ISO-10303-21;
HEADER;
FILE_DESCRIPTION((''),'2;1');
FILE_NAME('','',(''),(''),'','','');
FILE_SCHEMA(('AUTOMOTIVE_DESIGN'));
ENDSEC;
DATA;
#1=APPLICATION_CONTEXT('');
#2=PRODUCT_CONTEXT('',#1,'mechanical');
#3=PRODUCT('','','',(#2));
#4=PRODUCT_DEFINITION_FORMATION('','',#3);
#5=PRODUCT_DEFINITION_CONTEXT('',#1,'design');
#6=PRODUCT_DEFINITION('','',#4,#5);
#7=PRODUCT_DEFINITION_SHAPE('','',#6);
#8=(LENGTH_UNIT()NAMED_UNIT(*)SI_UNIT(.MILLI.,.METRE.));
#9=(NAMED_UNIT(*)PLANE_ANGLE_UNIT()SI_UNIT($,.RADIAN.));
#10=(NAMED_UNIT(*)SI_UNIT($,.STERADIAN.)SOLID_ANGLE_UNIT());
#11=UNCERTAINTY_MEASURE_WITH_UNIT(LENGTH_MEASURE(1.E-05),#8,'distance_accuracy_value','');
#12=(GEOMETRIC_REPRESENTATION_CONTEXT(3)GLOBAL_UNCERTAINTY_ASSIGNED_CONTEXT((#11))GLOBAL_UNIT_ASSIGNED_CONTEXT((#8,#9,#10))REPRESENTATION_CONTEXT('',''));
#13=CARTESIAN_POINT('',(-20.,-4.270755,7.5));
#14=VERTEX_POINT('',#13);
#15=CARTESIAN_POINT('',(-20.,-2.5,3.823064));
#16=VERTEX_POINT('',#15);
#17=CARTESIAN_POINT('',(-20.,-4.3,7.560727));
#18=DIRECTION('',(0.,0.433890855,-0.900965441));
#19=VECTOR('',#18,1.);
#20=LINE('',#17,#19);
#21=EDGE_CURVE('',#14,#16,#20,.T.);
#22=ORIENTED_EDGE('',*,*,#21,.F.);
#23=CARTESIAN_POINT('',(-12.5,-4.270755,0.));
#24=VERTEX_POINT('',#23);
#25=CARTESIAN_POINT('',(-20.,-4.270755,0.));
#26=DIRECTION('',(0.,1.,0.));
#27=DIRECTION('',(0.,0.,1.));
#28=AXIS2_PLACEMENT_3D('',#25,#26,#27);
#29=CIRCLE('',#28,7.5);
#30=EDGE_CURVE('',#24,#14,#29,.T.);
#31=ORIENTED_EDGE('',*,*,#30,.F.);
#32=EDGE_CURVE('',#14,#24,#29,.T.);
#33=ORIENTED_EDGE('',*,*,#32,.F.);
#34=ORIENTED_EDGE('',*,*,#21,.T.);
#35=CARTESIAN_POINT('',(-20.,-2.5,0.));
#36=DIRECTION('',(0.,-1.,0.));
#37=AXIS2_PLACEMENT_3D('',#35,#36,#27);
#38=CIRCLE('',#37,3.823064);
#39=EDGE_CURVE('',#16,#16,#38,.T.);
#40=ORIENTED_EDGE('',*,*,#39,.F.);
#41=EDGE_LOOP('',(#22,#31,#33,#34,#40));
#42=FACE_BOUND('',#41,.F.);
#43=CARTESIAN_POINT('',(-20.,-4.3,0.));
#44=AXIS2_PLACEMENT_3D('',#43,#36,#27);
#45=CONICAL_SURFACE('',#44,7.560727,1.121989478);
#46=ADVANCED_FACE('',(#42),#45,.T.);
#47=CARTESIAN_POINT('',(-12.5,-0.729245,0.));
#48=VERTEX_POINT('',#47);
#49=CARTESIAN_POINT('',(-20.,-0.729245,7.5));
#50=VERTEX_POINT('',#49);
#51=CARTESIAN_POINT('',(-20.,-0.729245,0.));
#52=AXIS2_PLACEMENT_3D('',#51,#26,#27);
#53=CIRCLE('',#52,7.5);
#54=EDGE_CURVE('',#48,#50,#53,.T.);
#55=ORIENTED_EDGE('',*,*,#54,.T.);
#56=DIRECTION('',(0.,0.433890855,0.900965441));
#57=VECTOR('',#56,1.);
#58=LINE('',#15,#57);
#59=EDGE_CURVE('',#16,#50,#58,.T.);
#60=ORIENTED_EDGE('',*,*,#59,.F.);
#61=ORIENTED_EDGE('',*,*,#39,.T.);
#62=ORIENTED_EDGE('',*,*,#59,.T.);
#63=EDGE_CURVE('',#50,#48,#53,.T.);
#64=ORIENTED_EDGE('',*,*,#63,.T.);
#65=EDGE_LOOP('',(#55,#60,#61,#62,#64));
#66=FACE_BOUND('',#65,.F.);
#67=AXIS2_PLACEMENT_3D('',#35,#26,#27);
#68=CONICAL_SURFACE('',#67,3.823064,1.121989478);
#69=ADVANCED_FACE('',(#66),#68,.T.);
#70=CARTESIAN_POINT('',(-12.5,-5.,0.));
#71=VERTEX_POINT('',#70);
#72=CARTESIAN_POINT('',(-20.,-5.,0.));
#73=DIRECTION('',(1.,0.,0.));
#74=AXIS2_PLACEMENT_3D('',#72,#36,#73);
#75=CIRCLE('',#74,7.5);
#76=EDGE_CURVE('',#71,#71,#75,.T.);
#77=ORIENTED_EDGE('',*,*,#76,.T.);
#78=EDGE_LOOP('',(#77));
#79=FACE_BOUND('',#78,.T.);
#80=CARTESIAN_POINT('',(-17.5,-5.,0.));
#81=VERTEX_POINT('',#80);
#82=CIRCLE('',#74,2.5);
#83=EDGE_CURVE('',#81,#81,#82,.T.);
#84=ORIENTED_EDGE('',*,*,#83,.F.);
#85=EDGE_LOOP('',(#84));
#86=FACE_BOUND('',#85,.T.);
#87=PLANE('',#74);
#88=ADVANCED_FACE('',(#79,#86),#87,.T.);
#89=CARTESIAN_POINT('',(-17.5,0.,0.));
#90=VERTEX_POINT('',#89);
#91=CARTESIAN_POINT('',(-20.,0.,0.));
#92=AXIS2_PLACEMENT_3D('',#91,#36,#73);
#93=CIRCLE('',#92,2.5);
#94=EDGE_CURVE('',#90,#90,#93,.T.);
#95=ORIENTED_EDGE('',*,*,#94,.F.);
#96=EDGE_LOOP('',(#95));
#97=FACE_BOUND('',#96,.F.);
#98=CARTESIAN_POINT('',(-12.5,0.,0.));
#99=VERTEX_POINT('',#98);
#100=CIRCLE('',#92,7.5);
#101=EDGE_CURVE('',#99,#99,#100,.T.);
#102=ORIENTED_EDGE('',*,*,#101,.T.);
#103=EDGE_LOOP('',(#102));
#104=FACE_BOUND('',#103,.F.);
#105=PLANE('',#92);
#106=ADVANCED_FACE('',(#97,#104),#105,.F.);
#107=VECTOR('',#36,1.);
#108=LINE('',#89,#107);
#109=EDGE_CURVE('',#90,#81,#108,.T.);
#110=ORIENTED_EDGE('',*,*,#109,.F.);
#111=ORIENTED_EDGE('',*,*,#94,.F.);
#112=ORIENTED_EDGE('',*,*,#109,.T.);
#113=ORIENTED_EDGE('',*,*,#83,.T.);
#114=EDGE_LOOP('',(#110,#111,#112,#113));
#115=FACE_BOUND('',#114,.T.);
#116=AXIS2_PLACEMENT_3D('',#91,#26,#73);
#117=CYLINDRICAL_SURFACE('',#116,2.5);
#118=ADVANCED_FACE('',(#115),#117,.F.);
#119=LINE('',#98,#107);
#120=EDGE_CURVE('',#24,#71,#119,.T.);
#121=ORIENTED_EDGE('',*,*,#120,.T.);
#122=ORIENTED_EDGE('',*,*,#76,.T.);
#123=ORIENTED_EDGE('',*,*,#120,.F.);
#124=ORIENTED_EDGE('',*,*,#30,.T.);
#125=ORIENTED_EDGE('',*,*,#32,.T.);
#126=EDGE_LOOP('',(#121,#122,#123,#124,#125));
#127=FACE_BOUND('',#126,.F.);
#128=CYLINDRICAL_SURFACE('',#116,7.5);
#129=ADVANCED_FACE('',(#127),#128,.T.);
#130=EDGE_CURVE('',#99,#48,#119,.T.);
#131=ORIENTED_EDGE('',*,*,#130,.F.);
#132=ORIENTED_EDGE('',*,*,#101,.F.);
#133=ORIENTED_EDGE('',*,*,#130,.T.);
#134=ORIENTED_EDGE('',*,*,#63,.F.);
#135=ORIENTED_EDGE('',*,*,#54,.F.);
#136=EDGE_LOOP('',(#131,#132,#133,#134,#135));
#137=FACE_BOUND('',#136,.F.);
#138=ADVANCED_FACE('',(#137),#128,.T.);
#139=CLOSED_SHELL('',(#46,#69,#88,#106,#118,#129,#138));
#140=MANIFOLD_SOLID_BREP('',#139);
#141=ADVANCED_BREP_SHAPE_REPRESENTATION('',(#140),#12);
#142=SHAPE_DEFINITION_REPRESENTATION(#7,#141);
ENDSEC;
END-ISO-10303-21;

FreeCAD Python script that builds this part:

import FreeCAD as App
import Part
import Sketcher
from FreeCAD import Vector
Q = App.Units.Quantity


def add_polygon(sketch, points):
    """Adds a closed chain of lines whose ends are joined by coincident constraints."""
    first, n = sketch.GeometryCount, len(points)
    for a, b in zip(points, points[1:] + points[:1]):
        sketch.addGeometry(Part.LineSegment(App.Vector(*a, 0), App.Vector(*b, 0)), False)
    for i in range(n):
        sketch.addConstraint(Sketcher.Constraint("Coincident", first + i, 2, first + (i + 1) % n, 1))

doc = App.newDocument("Part")
body = doc.addObject("PartDesign::Body", "Body")

sketch1 = body.newObject("Sketcher::SketchObject", "Sketch")
sketch1.AttachmentSupport = (doc.getObject("XZ_Plane"), [""])
sketch1.MapMode = "FlatFace"
sketch1.addGeometry([
    Part.Circle(Vector(-20, 0, 0), Vector(0, 0, 1), 7.5),
    Part.Circle(Vector(-20, 0, 0), Vector(0, 0, 1), 2.5),
], False)
sketch1.addConstraint([
    Sketcher.Constraint("Coincident", 1, 3, 0, 3),
    Sketcher.Constraint("PointOnObject", 0, 3, -1),
    Sketcher.Constraint("Diameter", 0, Q("15 mm")),
    Sketcher.Constraint("Diameter", 1, Q("5 mm")),
    Sketcher.Constraint("DistanceX", 0, 3, -1, 1, Q("20 mm")),
])
pad1 = body.newObject("PartDesign::Pad", "Pad")
pad1.Profile = sketch1
pad1.Length = 5

sketch2 = body.newObject("Sketcher::SketchObject", "Sketch001")
sketch2.AttachmentSupport = (doc.getObject("YZ_Plane"), [""])
sketch2.MapMode = "FlatFace"
sketch2.AttachmentOffset = App.Placement(Vector(0, 0, -20), App.Rotation())
add_polygon(sketch2, [(-4.3, 7.560727), (-2.5, 3.823064), (-0.7, 7.560727)])
sketch2.addConstraint([
    Sketcher.Constraint("Horizontal", 2),
    Sketcher.Constraint("Equal", 0, 1),
    Sketcher.Constraint("DistanceX", 2, 2, 2, 1, Q("3.6 mm")),
    Sketcher.Constraint("DistanceX", 0, 2, -1, 1, Q("2.5 mm")),
    Sketcher.Constraint("Distance", 0, Q("4.148509 mm")),
    Sketcher.Constraint("DistanceY", -1, 1, 0, 2, Q("3.823064 mm")),
])
groove = body.newObject("PartDesign::Groove", "Groove")
groove.Profile = sketch2
groove.ReferenceAxis = (sketch2, ["H_Axis"])
groove.Angle = 360

doc.recompute()
